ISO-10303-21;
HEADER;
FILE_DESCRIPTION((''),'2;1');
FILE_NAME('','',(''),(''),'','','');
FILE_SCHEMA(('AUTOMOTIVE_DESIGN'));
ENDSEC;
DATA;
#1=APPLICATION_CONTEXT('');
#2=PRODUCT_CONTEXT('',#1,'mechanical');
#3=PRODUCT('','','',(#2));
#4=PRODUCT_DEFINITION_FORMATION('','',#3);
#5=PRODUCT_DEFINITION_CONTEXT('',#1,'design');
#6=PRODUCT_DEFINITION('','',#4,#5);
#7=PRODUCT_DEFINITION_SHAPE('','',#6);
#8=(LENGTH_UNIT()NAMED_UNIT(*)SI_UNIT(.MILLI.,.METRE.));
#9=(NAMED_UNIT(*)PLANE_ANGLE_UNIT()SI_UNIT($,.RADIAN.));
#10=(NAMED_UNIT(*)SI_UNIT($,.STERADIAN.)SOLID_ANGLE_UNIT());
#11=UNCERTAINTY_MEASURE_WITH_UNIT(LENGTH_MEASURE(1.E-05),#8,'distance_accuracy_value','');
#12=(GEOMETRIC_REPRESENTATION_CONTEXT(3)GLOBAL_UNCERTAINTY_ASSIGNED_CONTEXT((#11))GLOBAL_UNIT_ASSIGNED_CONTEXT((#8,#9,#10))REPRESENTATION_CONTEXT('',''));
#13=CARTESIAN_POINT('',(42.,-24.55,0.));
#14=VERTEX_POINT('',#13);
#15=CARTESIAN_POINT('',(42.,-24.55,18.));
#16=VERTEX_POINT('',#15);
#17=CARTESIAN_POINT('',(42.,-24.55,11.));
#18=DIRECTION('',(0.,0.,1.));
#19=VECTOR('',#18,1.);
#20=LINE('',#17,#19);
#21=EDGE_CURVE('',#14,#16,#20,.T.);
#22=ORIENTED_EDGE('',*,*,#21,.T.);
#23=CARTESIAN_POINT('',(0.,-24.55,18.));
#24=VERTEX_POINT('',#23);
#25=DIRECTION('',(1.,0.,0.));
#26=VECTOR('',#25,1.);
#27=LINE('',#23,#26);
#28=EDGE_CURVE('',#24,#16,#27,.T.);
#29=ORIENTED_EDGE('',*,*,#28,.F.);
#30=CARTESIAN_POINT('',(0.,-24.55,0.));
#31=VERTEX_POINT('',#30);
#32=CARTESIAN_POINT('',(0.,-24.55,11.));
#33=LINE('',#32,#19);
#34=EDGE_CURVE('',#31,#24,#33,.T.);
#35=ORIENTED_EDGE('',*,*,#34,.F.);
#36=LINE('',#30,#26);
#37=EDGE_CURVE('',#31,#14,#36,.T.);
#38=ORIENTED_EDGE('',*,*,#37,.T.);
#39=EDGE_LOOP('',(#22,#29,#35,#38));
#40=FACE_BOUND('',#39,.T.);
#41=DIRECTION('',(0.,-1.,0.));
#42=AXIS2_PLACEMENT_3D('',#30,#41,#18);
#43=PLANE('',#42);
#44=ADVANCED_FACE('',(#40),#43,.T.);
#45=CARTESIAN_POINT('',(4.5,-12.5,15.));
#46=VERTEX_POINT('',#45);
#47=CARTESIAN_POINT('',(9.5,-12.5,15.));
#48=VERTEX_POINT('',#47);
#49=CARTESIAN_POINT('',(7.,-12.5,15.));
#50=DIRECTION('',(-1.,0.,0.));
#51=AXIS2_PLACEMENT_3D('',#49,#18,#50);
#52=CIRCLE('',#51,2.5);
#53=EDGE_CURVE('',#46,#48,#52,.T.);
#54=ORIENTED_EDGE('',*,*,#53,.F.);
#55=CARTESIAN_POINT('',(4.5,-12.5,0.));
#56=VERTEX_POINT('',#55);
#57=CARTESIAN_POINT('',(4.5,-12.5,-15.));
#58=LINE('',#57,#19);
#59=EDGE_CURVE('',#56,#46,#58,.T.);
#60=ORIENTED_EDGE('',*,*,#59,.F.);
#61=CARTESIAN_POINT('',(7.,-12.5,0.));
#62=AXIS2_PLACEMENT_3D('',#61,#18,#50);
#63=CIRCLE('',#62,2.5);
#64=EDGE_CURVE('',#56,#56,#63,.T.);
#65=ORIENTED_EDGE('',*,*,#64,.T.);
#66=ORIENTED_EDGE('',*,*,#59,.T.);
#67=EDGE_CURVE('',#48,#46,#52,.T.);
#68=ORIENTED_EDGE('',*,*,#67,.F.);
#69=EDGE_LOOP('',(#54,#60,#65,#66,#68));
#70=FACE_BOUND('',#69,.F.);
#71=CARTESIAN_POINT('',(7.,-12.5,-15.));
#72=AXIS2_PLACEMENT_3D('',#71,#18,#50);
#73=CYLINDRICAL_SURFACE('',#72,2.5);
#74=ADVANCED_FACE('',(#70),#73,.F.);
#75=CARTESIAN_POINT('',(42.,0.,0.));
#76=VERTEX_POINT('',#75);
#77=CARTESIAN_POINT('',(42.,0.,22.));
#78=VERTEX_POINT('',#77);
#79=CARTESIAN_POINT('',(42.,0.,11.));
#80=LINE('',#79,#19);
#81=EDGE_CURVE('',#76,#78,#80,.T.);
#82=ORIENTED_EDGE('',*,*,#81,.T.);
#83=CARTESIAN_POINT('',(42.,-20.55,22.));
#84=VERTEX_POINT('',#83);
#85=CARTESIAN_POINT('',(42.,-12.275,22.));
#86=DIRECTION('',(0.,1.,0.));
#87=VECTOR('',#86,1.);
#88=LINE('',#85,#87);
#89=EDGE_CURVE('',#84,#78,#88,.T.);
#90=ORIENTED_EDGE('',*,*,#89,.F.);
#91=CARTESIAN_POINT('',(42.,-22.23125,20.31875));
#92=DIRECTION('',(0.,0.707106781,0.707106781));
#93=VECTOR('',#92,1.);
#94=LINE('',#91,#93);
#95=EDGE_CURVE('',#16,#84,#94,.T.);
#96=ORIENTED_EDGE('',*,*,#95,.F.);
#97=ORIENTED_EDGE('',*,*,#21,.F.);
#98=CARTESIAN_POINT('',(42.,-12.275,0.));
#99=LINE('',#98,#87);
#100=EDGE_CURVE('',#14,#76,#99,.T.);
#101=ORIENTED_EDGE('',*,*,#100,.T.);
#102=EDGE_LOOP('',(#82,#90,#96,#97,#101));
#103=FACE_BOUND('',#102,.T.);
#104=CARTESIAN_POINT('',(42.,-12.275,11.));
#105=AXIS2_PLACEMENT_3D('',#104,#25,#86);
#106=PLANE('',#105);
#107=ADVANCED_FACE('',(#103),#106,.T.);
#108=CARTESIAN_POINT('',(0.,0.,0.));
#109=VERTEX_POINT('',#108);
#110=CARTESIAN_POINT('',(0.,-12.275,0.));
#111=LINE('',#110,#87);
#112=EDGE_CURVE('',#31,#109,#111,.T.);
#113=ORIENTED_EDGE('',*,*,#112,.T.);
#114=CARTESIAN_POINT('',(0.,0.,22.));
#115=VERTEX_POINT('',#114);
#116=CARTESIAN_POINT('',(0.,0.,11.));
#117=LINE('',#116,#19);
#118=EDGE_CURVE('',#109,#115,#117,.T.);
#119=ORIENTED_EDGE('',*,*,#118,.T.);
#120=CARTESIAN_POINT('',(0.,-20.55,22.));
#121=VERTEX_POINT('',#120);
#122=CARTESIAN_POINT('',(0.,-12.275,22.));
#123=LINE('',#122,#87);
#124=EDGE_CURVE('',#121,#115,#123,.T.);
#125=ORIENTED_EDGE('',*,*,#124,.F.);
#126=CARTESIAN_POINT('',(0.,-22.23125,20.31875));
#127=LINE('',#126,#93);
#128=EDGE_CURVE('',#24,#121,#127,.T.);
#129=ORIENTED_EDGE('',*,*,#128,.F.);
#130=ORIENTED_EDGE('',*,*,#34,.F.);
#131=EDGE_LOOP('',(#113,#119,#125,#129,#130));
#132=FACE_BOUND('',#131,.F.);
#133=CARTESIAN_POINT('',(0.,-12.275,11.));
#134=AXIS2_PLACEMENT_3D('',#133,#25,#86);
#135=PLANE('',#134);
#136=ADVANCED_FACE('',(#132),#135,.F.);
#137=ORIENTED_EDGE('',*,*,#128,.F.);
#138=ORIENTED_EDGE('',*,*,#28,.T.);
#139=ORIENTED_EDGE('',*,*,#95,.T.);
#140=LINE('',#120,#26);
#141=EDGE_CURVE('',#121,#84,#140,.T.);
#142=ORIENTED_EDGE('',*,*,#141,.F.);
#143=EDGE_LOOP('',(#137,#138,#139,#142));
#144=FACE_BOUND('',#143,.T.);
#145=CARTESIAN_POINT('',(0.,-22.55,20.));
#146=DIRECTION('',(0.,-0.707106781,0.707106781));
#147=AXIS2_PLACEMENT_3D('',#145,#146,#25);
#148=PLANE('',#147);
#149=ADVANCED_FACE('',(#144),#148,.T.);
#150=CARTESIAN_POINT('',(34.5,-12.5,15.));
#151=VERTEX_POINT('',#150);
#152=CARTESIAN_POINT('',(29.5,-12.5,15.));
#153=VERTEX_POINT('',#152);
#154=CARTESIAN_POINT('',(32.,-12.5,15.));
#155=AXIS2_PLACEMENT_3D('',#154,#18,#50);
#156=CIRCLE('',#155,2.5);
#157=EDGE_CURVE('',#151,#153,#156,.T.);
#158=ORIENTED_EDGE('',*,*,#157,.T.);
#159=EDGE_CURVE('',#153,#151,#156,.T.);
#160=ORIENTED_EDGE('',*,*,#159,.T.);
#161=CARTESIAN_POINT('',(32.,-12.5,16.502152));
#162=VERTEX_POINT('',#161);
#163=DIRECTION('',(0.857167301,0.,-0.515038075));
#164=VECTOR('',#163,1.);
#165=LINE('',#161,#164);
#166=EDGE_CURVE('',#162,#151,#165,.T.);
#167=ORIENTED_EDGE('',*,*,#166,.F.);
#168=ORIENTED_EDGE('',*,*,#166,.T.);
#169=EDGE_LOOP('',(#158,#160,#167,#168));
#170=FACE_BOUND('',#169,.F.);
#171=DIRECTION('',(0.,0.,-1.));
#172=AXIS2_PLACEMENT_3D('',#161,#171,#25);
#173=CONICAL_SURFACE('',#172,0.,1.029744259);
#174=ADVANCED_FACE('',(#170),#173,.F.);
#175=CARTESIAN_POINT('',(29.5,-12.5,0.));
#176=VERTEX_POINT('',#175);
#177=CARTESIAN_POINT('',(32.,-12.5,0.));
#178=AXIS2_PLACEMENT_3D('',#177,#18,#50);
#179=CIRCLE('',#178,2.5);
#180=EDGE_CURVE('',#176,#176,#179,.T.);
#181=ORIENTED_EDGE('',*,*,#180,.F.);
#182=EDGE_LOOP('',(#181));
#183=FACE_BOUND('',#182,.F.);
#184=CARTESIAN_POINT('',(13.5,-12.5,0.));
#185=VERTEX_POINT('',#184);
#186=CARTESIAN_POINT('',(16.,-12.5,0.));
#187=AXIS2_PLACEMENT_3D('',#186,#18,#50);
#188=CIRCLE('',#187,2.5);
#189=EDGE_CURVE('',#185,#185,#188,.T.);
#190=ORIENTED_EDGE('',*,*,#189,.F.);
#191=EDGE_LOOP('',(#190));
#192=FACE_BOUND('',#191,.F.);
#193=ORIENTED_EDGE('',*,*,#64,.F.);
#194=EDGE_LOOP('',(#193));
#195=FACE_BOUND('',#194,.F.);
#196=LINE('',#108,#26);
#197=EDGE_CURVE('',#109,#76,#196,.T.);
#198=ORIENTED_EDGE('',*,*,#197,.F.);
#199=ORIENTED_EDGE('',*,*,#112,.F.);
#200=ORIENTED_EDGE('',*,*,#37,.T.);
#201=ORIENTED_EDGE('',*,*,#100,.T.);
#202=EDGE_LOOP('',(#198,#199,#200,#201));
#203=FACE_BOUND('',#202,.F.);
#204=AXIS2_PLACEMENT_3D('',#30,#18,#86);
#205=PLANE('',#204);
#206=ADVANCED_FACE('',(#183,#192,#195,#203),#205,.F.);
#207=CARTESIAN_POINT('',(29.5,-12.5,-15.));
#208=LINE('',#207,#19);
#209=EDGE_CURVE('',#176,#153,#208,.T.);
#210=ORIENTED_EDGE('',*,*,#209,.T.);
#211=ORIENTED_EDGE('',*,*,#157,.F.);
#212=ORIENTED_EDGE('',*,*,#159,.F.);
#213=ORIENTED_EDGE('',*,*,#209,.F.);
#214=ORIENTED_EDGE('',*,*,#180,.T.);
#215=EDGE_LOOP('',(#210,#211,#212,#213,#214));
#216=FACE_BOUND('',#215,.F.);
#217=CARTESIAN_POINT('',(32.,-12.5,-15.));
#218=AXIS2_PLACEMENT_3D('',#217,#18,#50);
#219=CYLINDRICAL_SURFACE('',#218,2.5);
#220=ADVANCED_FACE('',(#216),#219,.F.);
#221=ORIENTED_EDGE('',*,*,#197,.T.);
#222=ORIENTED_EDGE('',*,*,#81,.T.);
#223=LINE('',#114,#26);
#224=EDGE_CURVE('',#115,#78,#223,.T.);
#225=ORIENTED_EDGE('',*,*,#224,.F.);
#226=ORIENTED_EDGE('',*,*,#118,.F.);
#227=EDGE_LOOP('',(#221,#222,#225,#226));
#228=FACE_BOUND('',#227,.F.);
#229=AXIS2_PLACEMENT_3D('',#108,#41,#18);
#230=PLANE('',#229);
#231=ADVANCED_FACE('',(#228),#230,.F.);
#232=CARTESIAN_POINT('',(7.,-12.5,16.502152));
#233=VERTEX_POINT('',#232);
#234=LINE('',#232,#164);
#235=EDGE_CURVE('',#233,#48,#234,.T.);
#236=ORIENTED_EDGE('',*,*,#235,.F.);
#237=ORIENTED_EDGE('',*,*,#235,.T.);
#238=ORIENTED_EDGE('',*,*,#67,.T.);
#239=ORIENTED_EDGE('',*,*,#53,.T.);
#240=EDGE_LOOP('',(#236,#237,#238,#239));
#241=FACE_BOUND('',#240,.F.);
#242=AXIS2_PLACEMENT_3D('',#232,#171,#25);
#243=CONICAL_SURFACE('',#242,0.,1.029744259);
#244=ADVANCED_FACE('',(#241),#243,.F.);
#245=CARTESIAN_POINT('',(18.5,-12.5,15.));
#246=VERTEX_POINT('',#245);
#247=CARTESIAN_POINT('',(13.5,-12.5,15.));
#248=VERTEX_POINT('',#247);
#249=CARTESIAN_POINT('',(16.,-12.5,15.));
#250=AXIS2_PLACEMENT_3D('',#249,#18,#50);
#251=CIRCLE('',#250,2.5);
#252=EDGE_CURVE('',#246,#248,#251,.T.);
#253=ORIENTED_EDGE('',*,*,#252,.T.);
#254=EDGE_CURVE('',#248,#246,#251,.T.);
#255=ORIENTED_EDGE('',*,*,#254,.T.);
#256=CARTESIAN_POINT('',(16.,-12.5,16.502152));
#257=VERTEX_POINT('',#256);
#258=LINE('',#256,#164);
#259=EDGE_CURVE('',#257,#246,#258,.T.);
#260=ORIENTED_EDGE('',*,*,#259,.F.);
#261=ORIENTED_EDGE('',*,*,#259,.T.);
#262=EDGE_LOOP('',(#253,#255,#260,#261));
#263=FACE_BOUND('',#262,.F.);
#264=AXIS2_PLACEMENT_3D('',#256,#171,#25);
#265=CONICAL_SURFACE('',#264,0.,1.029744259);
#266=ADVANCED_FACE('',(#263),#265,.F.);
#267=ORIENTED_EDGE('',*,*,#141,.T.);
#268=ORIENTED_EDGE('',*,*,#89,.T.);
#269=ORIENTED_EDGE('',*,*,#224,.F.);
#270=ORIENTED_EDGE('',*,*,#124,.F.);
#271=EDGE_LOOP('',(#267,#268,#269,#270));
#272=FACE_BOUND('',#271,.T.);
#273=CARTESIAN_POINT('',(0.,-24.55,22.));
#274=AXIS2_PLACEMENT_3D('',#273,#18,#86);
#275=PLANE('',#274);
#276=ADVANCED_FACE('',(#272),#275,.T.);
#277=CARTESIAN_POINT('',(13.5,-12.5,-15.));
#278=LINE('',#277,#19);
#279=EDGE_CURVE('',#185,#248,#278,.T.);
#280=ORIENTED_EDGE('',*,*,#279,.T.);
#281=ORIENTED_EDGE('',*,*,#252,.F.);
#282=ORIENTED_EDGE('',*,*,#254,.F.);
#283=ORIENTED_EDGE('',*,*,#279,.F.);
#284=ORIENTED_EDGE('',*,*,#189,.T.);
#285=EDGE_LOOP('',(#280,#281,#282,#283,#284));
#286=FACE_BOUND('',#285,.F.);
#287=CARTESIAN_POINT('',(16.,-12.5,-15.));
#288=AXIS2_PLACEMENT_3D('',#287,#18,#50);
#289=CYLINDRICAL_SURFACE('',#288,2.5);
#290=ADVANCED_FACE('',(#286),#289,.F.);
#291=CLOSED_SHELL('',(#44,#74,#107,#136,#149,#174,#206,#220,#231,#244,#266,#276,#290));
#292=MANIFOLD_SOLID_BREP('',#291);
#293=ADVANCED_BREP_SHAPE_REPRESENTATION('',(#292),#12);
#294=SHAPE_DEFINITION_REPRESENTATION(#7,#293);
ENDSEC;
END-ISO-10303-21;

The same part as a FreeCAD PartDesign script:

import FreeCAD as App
import Part
import Sketcher

V = App.Vector


def edges_at(feature, points):
    """Names of the edges that pass closest to the given points."""
    edges = feature.Shape.Edges
    near = lambda p: min(range(len(edges)), key=lambda i: edges[i].distToShape(Part.Vertex(*p))[0])
    return sorted({f"Edge{near(p) + 1}" for p in points})


def add_polygon(sketch, points):
    """Adds a closed chain of lines whose ends are joined by coincident constraints."""
    first, n = sketch.GeometryCount, len(points)
    for a, b in zip(points, points[1:] + points[:1]):
        sketch.addGeometry(Part.LineSegment(App.Vector(*a, 0), App.Vector(*b, 0)), False)
    for i in range(n):
        sketch.addConstraint(Sketcher.Constraint("Coincident", first + i, 2, first + (i + 1) % n, 1))

doc = App.newDocument("Part")
body = doc.addObject("PartDesign::Body", "Body")

# Sketch on YZ plane
sketch1 = doc.addObject("Sketcher::SketchObject", "Sketch")
body.addObject(sketch1)
sketch1.AttachmentSupport = (doc.YZ_Plane, [""])
sketch1.MapMode = "FlatFace"
add_polygon(sketch1, [(-25, 22), (-25, 0), (0, 0), (0, 22)])  # lines 0-3
sketch1.addConstraint(Sketcher.Constraint("Vertical", 0))
sketch1.addConstraint(Sketcher.Constraint("Horizontal", 1))
sketch1.addConstraint(Sketcher.Constraint("Vertical", 2))
sketch1.addConstraint(Sketcher.Constraint("Horizontal", 3))
sketch1.addConstraint(Sketcher.Constraint("Coincident", 1, 2, -1, 1))
sketch1.addConstraint(Sketcher.Constraint("DistanceY", 0, 2, 0, 1, 22.0))
sketch1.addConstraint(Sketcher.Constraint("DistanceX", 1, 1, 1, 2, 24.55))
pad1 = doc.addObject("PartDesign::Pad", "Pad")
body.addObject(pad1)
pad1.Profile = sketch1
pad1.Length = 42
doc.recompute()

chamfer = doc.addObject("PartDesign::Chamfer", "Chamfer")
body.addObject(chamfer)
chamfer.Base = (pad1, edges_at(pad1, [(21, -24.55, 22)]))
chamfer.Size = 4

# Sketch on XY plane
sketch2 = doc.addObject("Sketcher::SketchObject", "Sketch001")
body.addObject(sketch2)
sketch2.AttachmentSupport = (doc.XY_Plane, [""])
sketch2.MapMode = "FlatFace"
sketch2.addGeometry(Part.Circle(V(32, -12.5, 0), V(0, 0, 1), 2.5), False)
sketch2.addGeometry(Part.Circle(V(16, -12.5, 0), V(0, 0, 1), 2.5), False)
sketch2.addGeometry(Part.Circle(V(7, -12.5, 0), V(0, 0, 1), 2.5), False)
sketch2.addConstraint(Sketcher.Constraint("Equal", 0, 1))
sketch2.addConstraint(Sketcher.Constraint("Equal", 1, 2))
sketch2.addConstraint(Sketcher.Constraint("Horizontal", 0, 3, 1, 3))
sketch2.addConstraint(Sketcher.Constraint("Horizontal", 1, 3, 2, 3))
sketch2.addConstraint(Sketcher.Constraint("Diameter", 0, 5.0))
sketch2.addConstraint(Sketcher.Constraint("DistanceX", -1, 1, 0, 3, 32.0))
sketch2.addConstraint(Sketcher.Constraint("DistanceX", -1, 1, 1, 3, 16.0))
sketch2.addConstraint(Sketcher.Constraint("DistanceX", -1, 1, 2, 3, 7.0))
sketch2.addConstraint(Sketcher.Constraint("DistanceY", 0, 3, -1, 1, 12.5))
doc.recompute()
hole = doc.addObject("PartDesign::Hole", "Hole")
body.addObject(hole)
hole.Profile = sketch2
hole.ThreadType = "None"
hole.Diameter = 5
hole.DepthType = "Dimension"
hole.Depth = 15
hole.DrillPoint = "Angled"
hole.DrillPointAngle = 118
hole.Reversed = True

doc.recompute()
